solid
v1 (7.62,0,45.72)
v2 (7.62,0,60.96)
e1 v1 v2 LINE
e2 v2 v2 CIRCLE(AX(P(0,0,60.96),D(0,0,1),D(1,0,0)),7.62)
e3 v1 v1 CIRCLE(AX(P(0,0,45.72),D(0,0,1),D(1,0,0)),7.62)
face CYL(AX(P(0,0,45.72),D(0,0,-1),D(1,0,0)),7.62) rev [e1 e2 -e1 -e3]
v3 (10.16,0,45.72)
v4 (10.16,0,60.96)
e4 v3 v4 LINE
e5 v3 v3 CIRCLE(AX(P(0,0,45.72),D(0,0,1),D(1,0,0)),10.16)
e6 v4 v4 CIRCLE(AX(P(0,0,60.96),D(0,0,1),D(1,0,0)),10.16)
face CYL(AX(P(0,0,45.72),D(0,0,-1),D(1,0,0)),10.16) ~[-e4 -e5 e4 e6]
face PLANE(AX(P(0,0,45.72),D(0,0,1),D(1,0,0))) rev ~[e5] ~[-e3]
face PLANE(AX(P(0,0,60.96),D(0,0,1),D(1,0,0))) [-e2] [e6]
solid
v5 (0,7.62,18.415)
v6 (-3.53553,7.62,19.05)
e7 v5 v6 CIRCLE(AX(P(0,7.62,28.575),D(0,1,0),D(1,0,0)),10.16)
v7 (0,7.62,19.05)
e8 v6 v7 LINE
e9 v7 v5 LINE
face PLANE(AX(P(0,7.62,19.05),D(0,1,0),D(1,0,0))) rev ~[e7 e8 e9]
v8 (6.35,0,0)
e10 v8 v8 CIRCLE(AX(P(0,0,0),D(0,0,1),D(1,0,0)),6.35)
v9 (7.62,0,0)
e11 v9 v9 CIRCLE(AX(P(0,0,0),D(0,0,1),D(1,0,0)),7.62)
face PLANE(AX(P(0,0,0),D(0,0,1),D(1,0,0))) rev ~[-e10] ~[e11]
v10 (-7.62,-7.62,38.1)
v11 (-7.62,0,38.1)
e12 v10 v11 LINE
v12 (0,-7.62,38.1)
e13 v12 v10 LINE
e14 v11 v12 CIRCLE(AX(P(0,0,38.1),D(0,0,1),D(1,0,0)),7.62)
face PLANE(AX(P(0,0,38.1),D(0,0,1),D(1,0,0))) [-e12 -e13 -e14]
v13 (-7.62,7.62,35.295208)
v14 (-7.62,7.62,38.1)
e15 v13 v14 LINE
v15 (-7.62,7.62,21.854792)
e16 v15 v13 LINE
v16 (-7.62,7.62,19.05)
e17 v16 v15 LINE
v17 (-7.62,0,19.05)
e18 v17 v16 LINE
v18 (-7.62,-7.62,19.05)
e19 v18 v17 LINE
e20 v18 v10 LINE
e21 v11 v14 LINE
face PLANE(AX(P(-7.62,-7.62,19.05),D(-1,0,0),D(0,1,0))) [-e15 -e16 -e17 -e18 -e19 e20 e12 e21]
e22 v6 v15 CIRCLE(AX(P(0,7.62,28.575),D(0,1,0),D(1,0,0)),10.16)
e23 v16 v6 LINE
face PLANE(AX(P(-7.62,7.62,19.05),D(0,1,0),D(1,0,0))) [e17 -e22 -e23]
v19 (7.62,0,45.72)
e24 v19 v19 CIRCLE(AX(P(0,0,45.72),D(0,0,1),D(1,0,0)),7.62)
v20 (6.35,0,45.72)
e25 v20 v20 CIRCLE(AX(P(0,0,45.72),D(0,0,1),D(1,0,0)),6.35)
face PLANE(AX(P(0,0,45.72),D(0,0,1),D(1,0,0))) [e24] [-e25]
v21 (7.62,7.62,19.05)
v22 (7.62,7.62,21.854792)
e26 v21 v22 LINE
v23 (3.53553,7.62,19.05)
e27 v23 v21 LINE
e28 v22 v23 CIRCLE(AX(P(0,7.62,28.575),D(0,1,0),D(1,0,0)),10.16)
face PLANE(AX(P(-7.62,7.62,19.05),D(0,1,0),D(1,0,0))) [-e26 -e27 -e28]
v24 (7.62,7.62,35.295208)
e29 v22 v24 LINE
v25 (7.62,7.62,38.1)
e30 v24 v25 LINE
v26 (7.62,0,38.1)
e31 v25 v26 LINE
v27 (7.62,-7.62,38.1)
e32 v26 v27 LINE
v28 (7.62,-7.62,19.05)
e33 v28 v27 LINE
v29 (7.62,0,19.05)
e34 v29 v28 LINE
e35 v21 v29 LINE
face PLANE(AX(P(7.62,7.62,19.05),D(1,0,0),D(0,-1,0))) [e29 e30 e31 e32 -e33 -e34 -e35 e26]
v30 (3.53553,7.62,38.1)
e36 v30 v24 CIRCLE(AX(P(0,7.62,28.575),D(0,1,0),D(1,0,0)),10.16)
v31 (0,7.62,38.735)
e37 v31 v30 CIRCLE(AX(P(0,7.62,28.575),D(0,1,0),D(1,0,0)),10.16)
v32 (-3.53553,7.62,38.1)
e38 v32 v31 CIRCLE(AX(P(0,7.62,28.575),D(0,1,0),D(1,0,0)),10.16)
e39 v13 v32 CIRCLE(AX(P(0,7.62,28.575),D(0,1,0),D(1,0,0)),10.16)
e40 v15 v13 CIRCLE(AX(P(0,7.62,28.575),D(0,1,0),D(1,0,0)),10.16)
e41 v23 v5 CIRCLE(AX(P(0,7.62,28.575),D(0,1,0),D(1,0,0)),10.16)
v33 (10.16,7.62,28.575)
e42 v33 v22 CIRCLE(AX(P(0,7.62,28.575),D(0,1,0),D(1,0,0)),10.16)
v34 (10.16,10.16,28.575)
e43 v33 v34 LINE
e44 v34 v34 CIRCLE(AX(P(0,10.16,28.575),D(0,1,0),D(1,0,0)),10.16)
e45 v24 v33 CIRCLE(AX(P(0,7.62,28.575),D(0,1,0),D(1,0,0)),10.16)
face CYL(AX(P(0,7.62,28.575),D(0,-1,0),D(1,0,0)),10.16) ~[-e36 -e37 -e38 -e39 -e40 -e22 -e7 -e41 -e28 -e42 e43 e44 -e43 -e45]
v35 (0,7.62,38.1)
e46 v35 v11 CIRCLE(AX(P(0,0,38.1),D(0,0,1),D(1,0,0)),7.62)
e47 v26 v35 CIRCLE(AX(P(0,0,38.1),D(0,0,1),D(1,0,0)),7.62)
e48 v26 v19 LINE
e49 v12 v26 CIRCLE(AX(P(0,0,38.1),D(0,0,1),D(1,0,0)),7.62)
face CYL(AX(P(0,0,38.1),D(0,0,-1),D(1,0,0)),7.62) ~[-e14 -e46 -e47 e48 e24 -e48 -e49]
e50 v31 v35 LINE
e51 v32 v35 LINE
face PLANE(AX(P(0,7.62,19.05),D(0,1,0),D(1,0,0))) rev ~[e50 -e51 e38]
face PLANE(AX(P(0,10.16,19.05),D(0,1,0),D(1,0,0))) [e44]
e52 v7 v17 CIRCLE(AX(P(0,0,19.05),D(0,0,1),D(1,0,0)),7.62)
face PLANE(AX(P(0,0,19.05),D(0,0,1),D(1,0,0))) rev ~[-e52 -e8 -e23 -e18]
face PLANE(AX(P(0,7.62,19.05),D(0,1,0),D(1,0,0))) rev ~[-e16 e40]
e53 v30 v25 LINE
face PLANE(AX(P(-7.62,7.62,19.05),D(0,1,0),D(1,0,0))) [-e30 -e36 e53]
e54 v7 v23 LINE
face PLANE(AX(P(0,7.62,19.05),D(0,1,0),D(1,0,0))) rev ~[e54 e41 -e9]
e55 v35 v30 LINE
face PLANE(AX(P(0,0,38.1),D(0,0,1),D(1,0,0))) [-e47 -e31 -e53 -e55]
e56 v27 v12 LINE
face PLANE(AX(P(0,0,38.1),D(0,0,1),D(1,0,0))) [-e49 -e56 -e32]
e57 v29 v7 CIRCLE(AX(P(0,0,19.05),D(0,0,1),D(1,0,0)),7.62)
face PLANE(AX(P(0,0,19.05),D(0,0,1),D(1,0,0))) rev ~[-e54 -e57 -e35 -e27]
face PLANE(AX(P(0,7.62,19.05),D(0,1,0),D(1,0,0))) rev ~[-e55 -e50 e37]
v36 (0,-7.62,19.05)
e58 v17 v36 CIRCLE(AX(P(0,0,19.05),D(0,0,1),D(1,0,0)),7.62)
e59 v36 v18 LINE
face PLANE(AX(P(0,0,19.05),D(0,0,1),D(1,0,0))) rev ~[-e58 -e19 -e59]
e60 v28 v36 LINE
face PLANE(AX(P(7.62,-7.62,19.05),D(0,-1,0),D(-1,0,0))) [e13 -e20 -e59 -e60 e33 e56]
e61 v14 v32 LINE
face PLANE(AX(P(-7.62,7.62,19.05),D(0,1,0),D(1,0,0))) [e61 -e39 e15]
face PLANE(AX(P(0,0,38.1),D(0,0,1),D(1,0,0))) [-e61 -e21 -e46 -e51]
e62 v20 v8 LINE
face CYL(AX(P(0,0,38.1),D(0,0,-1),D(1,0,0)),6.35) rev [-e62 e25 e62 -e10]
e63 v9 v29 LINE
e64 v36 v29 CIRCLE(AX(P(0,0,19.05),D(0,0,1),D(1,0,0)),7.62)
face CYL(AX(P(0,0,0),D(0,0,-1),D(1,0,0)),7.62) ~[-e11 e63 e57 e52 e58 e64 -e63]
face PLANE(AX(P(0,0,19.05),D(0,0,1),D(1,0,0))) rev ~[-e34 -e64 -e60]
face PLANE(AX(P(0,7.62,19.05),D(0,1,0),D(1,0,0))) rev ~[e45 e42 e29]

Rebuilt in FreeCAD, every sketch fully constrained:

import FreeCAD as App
import Part
import Sketcher

V = App.Vector
Q = App.Units.Quantity


def add_polygon(sketch, points):
    """Adds a closed chain of lines whose ends are joined by coincident constraints."""
    first, n = sketch.GeometryCount, len(points)
    for a, b in zip(points, points[1:] + points[:1]):
        sketch.addGeometry(Part.LineSegment(App.Vector(*a, 0), App.Vector(*b, 0)), False)
    for i in range(n):
        sketch.addConstraint(Sketcher.Constraint("Coincident", first + i, 2, first + (i + 1) % n, 1))

doc = App.newDocument("Part")
params = doc.addObject("Spreadsheet::Sheet", "Params")
for row, (alias, value) in enumerate([
    ("sketch1_diameter", "0.6 in"),
    ("sketch1_diameter2", "0.5 in"),
    ("pad1_length", "0.75 in"),
    ("sketch2_diameter", "0.5 in"),
    ("sketch2_width", "0.6 in"),
    ("pad2_length", "0.75 in"),
    ("sketch3_diameter", "0.6 in"),
    ("sketch3_diameter2", "0.5 in"),
    ("pad3_length", "0.3 in"),
    ("sketch4_diameter", "0.8 in"),
    ("sketch4_diameter2", "0.6 in"),
    ("pad4_length", "0.6 in"),
    ("sketch5_diameter", "0.8 in"),
    ("pad5_length", "0.1 in"),
], start=1):
    params.set(f"A{row}", alias)
    params.set(f"B{row}", "=" + value)
    params.setAlias(f"B{row}", alias)

body = doc.addObject("PartDesign::Body", "Body")
body.AllowCompound = True

# Sketch on XY plane
sketch1 = body.newObject("Sketcher::SketchObject", "Sketch")
sketch1.AttachmentSupport = (doc.getObject("XY_Plane"), [""])
sketch1.MapMode = "FlatFace"
sketch1.addGeometry(Part.Circle(V(0, 0, 0), V(0, 0, 1), 7.62), False)
sketch1.addGeometry(Part.Circle(V(0, 0, 0), V(0, 0, 1), 6.35), False)
sketch1.addConstraint(Sketcher.Constraint("Coincident", 0, 3, -1, 1))
sketch1.addConstraint(Sketcher.Constraint("Coincident", 1, 3, -1, 1))
sketch1.addConstraint(Sketcher.Constraint("Diameter", 0, Q("0.6 in")))
sketch1.addConstraint(Sketcher.Constraint("Diameter", 1, Q("0.5 in")))
sketch1.setExpression("Constraints[2]", "Params.sketch1_diameter")
sketch1.setExpression("Constraints[3]", "Params.sketch1_diameter2")
pad1 = body.newObject("PartDesign::Pad", "Pad")
pad1.Profile = sketch1
pad1.setExpression("Length", "Params.pad1_length")

# Sketch on XY plane
sketch2 = body.newObject("Sketcher::SketchObject", "Sketch001")
sketch2.AttachmentSupport = (doc.getObject("XY_Plane"), [""])
sketch2.MapMode = "FlatFace"
sketch2.AttachmentOffset = App.Placement(V(0, 0, 0.75 * 25.4), App.Rotation())
add_polygon(sketch2, [(7.62, 7.62), (-7.62, 7.62), (-7.62, -7.62), (7.62, -7.62)])  # lines 0-3
sketch2.addGeometry(Part.Circle(V(0, 0, 0), V(0, 0, 1), 6.35), False)  # 4
sketch2.addConstraint(Sketcher.Constraint("Horizontal", 0))
sketch2.addConstraint(Sketcher.Constraint("Vertical", 1))
sketch2.addConstraint(Sketcher.Constraint("Horizontal", 2))
sketch2.addConstraint(Sketcher.Constraint("Vertical", 3))
sketch2.addConstraint(Sketcher.Constraint("Coincident", 4, 3, -1, 1))
sketch2.addConstraint(Sketcher.Constraint("Symmetric", 0, 2, 2, 2, -1, 1))
sketch2.addConstraint(Sketcher.Constraint("Equal", 2, 1))
sketch2.addConstraint(Sketcher.Constraint("Diameter", 4, Q("0.5 in")))
sketch2.addConstraint(Sketcher.Constraint("DistanceX", 0, 2, 0, 1, Q("0.6 in")))
sketch2.setExpression("Constraints[11]", "Params.sketch2_diameter")
sketch2.setExpression("Constraints[12]", "Params.sketch2_width")
pad2 = body.newObject("PartDesign::Pad", "Pad001")
pad2.Profile = sketch2
pad2.setExpression("Length", "Params.pad2_length")

# Sketch on XY plane
sketch3 = body.newObject("Sketcher::SketchObject", "Sketch002")
sketch3.AttachmentSupport = (doc.getObject("XY_Plane"), [""])
sketch3.MapMode = "FlatFace"
sketch3.AttachmentOffset = App.Placement(V(0, 0, 1.5 * 25.4), App.Rotation())
sketch3.addGeometry(Part.Circle(V(0, 0, 0), V(0, 0, 1), 7.62), False)
sketch3.addGeometry(Part.Circle(V(0, 0, 0), V(0, 0, 1), 6.35), False)
sketch3.addConstraint(Sketcher.Constraint("Coincident", 0, 3, -1, 1))
sketch3.addConstraint(Sketcher.Constraint("Coincident", 1, 3, -1, 1))
sketch3.addConstraint(Sketcher.Constraint("Diameter", 0, Q("0.6 in")))
sketch3.addConstraint(Sketcher.Constraint("Diameter", 1, Q("0.5 in")))
sketch3.setExpression("Constraints[2]", "Params.sketch3_diameter")
sketch3.setExpression("Constraints[3]", "Params.sketch3_diameter2")
pad3 = body.newObject("PartDesign::Pad", "Pad002")
pad3.Profile = sketch3
pad3.setExpression("Length", "Params.pad3_length")

# Sketch on XY plane
sketch4 = body.newObject("Sketcher::SketchObject", "Sketch003")
sketch4.AttachmentSupport = (doc.getObject("XY_Plane"), [""])
sketch4.MapMode = "FlatFace"
sketch4.AttachmentOffset = App.Placement(V(0, 0, 1.8 * 25.4), App.Rotation())
sketch4.addGeometry(Part.Circle(V(0, 0, 0), V(0, 0, 1), 10.16), False)
sketch4.addGeometry(Part.Circle(V(0, 0, 0), V(0, 0, 1), 7.62), False)
sketch4.addConstraint(Sketcher.Constraint("Coincident", 0, 3, -1, 1))
sketch4.addConstraint(Sketcher.Constraint("Coincident", 1, 3, -1, 1))
sketch4.addConstraint(Sketcher.Constraint("Diameter", 0, Q("0.8 in")))
sketch4.addConstraint(Sketcher.Constraint("Diameter", 1, Q("0.6 in")))
sketch4.setExpression("Constraints[2]", "Params.sketch4_diameter")
sketch4.setExpression("Constraints[3]", "Params.sketch4_diameter2")
pad4 = body.newObject("PartDesign::Pad", "Pad003")
pad4.Profile = sketch4
pad4.setExpression("Length", "Params.pad4_length")

# Sketch on XZ plane
sketch5 = body.newObject("Sketcher::SketchObject", "Sketch004")
sketch5.AttachmentSupport = (doc.getObject("XZ_Plane"), [""])
sketch5.MapMode = "FlatFace"
sketch5.AttachmentOffset = App.Placement(V(0, 0, -0.3 * 25.4), App.Rotation())
sketch5.addGeometry(Part.Circle(V(0, 28.575, 0), V(0, 0, 1), 10.16), False)
sketch5.addConstraint(Sketcher.Constraint("PointOnObject", 0, 3, -2))
sketch5.addConstraint(Sketcher.Constraint("Diameter", 0, Q("0.8 in")))
sketch5.addConstraint(Sketcher.Constraint("DistanceY", -1, 1, 0, 3, Q("1.125 in")))
sketch5.setExpression("Constraints[1]", "Params.sketch5_diameter")
pad5 = body.newObject("PartDesign::Pad", "Pad004")
pad5.Profile = sketch5
pad5.setExpression("Length", "Params.pad5_length")
pad5.Reversed = True

doc.recompute()
